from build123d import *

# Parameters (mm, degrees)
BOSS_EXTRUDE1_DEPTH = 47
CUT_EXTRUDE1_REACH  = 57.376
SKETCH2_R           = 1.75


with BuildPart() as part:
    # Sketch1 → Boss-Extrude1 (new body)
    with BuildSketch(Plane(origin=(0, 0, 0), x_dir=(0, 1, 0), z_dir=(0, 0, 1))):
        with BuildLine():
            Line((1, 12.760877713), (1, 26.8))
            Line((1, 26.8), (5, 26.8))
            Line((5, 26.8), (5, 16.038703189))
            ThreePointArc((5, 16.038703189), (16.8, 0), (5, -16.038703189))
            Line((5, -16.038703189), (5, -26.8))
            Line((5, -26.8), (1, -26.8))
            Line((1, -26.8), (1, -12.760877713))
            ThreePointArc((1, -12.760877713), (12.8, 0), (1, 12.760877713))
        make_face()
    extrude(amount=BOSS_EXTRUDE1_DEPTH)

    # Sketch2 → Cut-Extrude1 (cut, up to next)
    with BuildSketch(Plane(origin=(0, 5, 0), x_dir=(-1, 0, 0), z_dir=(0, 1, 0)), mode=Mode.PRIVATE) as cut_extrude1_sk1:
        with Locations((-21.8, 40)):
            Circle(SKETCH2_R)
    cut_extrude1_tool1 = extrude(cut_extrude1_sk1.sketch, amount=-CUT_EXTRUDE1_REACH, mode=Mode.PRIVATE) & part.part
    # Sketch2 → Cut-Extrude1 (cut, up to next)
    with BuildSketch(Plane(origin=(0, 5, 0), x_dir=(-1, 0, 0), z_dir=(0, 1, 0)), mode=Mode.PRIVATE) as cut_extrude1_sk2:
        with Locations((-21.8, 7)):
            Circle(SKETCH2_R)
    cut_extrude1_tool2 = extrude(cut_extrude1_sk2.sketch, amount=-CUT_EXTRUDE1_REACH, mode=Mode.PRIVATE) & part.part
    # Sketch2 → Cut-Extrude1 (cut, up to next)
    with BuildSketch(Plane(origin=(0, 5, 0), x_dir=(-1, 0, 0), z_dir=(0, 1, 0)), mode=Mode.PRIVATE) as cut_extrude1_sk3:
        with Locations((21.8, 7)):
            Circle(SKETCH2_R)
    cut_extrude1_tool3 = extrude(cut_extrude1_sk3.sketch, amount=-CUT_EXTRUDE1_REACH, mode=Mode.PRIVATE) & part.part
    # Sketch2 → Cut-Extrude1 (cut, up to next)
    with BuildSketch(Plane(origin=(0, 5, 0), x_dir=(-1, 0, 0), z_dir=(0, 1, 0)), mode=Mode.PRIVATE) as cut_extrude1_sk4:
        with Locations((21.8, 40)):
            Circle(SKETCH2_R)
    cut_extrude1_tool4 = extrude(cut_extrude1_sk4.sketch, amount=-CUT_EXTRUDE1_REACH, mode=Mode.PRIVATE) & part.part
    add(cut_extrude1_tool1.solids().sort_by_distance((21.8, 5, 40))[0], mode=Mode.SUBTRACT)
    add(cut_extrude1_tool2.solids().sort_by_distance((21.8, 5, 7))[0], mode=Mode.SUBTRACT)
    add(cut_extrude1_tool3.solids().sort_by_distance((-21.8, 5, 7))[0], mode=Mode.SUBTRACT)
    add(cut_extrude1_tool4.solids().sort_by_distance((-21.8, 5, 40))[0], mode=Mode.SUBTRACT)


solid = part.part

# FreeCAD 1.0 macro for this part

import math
import FreeCAD as App
import Part
import Sketcher

V = App.Vector

doc = App.newDocument("Part")
body = doc.addObject("PartDesign::Body", "Body")

sketch1 = doc.addObject("Sketcher::SketchObject", "Sketch")
body.addObject(sketch1)
sketch1.AttachmentSupport = (doc.XY_Plane, [""])
sketch1.MapMode = "FlatFace"
sketch1.addGeometry(Part.LineSegment(V(-26.8, 1, 0), V(-12.8, 1, 0)), False)
sketch1.addGeometry(Part.ArcOfCircle(Part.Circle(V(0, 0, 0), V(0, 0, 1), 12.8), math.radians(4), math.radians(176)), False)
sketch1.addGeometry(Part.LineSegment(V(12.8, 1, 0), V(26.8, 1, 0)), False)
sketch1.addGeometry(Part.LineSegment(V(26.8, 1, 0), V(26.8, 5, 0)), False)
sketch1.addGeometry(Part.LineSegment(V(26.8, 5, 0), V(16, 5, 0)), False)
sketch1.addGeometry(Part.ArcOfCircle(Part.Circle(V(0, 0, 0), V(0, 0, 1), 16.8), math.radians(17), math.radians(163)), False)
sketch1.addGeometry(Part.LineSegment(V(-16, 5, 0), V(-26.8, 5, 0)), False)
sketch1.addGeometry(Part.LineSegment(V(-26.8, 5, 0), V(-26.8, 1, 0)), False)
sketch1.addConstraint(Sketcher.Constraint("Coincident", 0, 2, 1, 2))
sketch1.addConstraint(Sketcher.Constraint("Coincident", 1, 1, 2, 1))
sketch1.addConstraint(Sketcher.Constraint("Coincident", 2, 2, 3, 1))
sketch1.addConstraint(Sketcher.Constraint("Coincident", 3, 2, 4, 1))
sketch1.addConstraint(Sketcher.Constraint("Coincident", 4, 2, 5, 1))
sketch1.addConstraint(Sketcher.Constraint("Coincident", 5, 2, 6, 1))
sketch1.addConstraint(Sketcher.Constraint("Coincident", 6, 2, 7, 1))
sketch1.addConstraint(Sketcher.Constraint("Coincident", 7, 2, 0, 1))
sketch1.addConstraint(Sketcher.Constraint("Horizontal", 0))
sketch1.addConstraint(Sketcher.Constraint("Horizontal", 2))
sketch1.addConstraint(Sketcher.Constraint("Vertical", 3))
sketch1.addConstraint(Sketcher.Constraint("Horizontal", 4))
sketch1.addConstraint(Sketcher.Constraint("Horizontal", 6))
sketch1.addConstraint(Sketcher.Constraint("Vertical", 7))
sketch1.addConstraint(Sketcher.Constraint("Coincident", 1, 3, -1, 1))
sketch1.addConstraint(Sketcher.Constraint("Coincident", 5, 3, -1, 1))
sketch1.addConstraint(Sketcher.Constraint("Symmetric", 3, 2, 6, 2, -2))
sketch1.addConstraint(Sketcher.Constraint("Horizontal", 0, 2, 1, 1))
sketch1.addConstraint(Sketcher.Constraint("Radius", 1, 12.8))
sketch1.addConstraint(Sketcher.Constraint("Radius", 5, 16.8))
sketch1.addConstraint(Sketcher.Constraint("DistanceY", 3, 1, 3, 2, 4.0))
sketch1.addConstraint(Sketcher.Constraint("DistanceY", -1, 1, 0, 2, 1.0))
sketch1.addConstraint(Sketcher.Constraint("DistanceX", -1, 1, 2, 2, 26.8))
pad1 = doc.addObject("PartDesign::Pad", "Pad")
body.addObject(pad1)
pad1.Profile = sketch1
pad1.Length = 47

sketch2 = doc.addObject("Sketcher::SketchObject", "Sketch001")
body.addObject(sketch2)
sketch2.AttachmentSupport = (doc.XZ_Plane, [""])
sketch2.MapMode = "FlatFace"
sketch2.AttachmentOffset = App.Placement(V(0, 0, -5), App.Rotation())
sketch2.addGeometry(Part.Circle(V(21.8, 40, 0), V(0, 0, 1), 1.8), False)
sketch2.addConstraint(Sketcher.Constraint("Diameter", 0, 3.5))
sketch2.addConstraint(Sketcher.Constraint("DistanceY", -1, 1, 0, 3, 40.0))
sketch2.addConstraint(Sketcher.Constraint("DistanceX", -1, 1, 0, 3, 21.8))
pocket1 = doc.addObject("PartDesign::Pocket", "Pocket")
body.addObject(pocket1)
pocket1.Profile = sketch2
pocket1.Type = "UpToFirst"
pocket1.Reversed = True

sketch3 = doc.addObject("Sketcher::SketchObject", "Sketch002")
body.addObject(sketch3)
sketch3.AttachmentSupport = (doc.XZ_Plane, [""])
sketch3.MapMode = "FlatFace"
sketch3.AttachmentOffset = App.Placement(V(0, 0, -5), App.Rotation())
sketch3.addGeometry(Part.Circle(V(21.8, 7, 0), V(0, 0, 1), 1.8), False)
sketch3.addConstraint(Sketcher.Constraint("Diameter", 0, 3.5))
sketch3.addConstraint(Sketcher.Constraint("DistanceY", -1, 1, 0, 3, 7.0))
sketch3.addConstraint(Sketcher.Constraint("DistanceX", -1, 1, 0, 3, 21.8))
pocket2 = doc.addObject("PartDesign::Pocket", "Pocket001")
body.addObject(pocket2)
pocket2.Profile = sketch3
pocket2.Type = "UpToFirst"
pocket2.Reversed = True

sketch4 = doc.addObject("Sketcher::SketchObject", "Sketch003")
body.addObject(sketch4)
sketch4.AttachmentSupport = (doc.XZ_Plane, [""])
sketch4.MapMode = "FlatFace"
sketch4.AttachmentOffset = App.Placement(V(0, 0, -5), App.Rotation())
sketch4.addGeometry(Part.Circle(V(-21.8, 7, 0), V(0, 0, 1), 1.8), False)
sketch4.addConstraint(Sketcher.Constraint("Diameter", 0, 3.5))
sketch4.addConstraint(Sketcher.Constraint("DistanceY", -1, 1, 0, 3, 7.0))
sketch4.addConstraint(Sketcher.Constraint("DistanceX", 0, 3, -1, 1, 21.8))
pocket3 = doc.addObject("PartDesign::Pocket", "Pocket002")
body.addObject(pocket3)
pocket3.Profile = sketch4
pocket3.Type = "UpToFirst"
pocket3.Reversed = True

sketch5 = doc.addObject("Sketcher::SketchObject", "Sketch004")
body.addObject(sketch5)
sketch5.AttachmentSupport = (doc.XZ_Plane, [""])
sketch5.MapMode = "FlatFace"
sketch5.AttachmentOffset = App.Placement(V(0, 0, -5), App.Rotation())
sketch5.addGeometry(Part.Circle(V(-21.8, 40, 0), V(0, 0, 1), 1.8), False)
sketch5.addConstraint(Sketcher.Constraint("Diameter", 0, 3.5))
sketch5.addConstraint(Sketcher.Constraint("DistanceY", -1, 1, 0, 3, 40.0))
sketch5.addConstraint(Sketcher.Constraint("DistanceX", 0, 3, -1, 1, 21.8))
pocket4 = doc.addObject("PartDesign::Pocket", "Pocket003")
body.addObject(pocket4)
pocket4.Profile = sketch5
pocket4.Type = "UpToFirst"
pocket4.Reversed = True

doc.recompute()
